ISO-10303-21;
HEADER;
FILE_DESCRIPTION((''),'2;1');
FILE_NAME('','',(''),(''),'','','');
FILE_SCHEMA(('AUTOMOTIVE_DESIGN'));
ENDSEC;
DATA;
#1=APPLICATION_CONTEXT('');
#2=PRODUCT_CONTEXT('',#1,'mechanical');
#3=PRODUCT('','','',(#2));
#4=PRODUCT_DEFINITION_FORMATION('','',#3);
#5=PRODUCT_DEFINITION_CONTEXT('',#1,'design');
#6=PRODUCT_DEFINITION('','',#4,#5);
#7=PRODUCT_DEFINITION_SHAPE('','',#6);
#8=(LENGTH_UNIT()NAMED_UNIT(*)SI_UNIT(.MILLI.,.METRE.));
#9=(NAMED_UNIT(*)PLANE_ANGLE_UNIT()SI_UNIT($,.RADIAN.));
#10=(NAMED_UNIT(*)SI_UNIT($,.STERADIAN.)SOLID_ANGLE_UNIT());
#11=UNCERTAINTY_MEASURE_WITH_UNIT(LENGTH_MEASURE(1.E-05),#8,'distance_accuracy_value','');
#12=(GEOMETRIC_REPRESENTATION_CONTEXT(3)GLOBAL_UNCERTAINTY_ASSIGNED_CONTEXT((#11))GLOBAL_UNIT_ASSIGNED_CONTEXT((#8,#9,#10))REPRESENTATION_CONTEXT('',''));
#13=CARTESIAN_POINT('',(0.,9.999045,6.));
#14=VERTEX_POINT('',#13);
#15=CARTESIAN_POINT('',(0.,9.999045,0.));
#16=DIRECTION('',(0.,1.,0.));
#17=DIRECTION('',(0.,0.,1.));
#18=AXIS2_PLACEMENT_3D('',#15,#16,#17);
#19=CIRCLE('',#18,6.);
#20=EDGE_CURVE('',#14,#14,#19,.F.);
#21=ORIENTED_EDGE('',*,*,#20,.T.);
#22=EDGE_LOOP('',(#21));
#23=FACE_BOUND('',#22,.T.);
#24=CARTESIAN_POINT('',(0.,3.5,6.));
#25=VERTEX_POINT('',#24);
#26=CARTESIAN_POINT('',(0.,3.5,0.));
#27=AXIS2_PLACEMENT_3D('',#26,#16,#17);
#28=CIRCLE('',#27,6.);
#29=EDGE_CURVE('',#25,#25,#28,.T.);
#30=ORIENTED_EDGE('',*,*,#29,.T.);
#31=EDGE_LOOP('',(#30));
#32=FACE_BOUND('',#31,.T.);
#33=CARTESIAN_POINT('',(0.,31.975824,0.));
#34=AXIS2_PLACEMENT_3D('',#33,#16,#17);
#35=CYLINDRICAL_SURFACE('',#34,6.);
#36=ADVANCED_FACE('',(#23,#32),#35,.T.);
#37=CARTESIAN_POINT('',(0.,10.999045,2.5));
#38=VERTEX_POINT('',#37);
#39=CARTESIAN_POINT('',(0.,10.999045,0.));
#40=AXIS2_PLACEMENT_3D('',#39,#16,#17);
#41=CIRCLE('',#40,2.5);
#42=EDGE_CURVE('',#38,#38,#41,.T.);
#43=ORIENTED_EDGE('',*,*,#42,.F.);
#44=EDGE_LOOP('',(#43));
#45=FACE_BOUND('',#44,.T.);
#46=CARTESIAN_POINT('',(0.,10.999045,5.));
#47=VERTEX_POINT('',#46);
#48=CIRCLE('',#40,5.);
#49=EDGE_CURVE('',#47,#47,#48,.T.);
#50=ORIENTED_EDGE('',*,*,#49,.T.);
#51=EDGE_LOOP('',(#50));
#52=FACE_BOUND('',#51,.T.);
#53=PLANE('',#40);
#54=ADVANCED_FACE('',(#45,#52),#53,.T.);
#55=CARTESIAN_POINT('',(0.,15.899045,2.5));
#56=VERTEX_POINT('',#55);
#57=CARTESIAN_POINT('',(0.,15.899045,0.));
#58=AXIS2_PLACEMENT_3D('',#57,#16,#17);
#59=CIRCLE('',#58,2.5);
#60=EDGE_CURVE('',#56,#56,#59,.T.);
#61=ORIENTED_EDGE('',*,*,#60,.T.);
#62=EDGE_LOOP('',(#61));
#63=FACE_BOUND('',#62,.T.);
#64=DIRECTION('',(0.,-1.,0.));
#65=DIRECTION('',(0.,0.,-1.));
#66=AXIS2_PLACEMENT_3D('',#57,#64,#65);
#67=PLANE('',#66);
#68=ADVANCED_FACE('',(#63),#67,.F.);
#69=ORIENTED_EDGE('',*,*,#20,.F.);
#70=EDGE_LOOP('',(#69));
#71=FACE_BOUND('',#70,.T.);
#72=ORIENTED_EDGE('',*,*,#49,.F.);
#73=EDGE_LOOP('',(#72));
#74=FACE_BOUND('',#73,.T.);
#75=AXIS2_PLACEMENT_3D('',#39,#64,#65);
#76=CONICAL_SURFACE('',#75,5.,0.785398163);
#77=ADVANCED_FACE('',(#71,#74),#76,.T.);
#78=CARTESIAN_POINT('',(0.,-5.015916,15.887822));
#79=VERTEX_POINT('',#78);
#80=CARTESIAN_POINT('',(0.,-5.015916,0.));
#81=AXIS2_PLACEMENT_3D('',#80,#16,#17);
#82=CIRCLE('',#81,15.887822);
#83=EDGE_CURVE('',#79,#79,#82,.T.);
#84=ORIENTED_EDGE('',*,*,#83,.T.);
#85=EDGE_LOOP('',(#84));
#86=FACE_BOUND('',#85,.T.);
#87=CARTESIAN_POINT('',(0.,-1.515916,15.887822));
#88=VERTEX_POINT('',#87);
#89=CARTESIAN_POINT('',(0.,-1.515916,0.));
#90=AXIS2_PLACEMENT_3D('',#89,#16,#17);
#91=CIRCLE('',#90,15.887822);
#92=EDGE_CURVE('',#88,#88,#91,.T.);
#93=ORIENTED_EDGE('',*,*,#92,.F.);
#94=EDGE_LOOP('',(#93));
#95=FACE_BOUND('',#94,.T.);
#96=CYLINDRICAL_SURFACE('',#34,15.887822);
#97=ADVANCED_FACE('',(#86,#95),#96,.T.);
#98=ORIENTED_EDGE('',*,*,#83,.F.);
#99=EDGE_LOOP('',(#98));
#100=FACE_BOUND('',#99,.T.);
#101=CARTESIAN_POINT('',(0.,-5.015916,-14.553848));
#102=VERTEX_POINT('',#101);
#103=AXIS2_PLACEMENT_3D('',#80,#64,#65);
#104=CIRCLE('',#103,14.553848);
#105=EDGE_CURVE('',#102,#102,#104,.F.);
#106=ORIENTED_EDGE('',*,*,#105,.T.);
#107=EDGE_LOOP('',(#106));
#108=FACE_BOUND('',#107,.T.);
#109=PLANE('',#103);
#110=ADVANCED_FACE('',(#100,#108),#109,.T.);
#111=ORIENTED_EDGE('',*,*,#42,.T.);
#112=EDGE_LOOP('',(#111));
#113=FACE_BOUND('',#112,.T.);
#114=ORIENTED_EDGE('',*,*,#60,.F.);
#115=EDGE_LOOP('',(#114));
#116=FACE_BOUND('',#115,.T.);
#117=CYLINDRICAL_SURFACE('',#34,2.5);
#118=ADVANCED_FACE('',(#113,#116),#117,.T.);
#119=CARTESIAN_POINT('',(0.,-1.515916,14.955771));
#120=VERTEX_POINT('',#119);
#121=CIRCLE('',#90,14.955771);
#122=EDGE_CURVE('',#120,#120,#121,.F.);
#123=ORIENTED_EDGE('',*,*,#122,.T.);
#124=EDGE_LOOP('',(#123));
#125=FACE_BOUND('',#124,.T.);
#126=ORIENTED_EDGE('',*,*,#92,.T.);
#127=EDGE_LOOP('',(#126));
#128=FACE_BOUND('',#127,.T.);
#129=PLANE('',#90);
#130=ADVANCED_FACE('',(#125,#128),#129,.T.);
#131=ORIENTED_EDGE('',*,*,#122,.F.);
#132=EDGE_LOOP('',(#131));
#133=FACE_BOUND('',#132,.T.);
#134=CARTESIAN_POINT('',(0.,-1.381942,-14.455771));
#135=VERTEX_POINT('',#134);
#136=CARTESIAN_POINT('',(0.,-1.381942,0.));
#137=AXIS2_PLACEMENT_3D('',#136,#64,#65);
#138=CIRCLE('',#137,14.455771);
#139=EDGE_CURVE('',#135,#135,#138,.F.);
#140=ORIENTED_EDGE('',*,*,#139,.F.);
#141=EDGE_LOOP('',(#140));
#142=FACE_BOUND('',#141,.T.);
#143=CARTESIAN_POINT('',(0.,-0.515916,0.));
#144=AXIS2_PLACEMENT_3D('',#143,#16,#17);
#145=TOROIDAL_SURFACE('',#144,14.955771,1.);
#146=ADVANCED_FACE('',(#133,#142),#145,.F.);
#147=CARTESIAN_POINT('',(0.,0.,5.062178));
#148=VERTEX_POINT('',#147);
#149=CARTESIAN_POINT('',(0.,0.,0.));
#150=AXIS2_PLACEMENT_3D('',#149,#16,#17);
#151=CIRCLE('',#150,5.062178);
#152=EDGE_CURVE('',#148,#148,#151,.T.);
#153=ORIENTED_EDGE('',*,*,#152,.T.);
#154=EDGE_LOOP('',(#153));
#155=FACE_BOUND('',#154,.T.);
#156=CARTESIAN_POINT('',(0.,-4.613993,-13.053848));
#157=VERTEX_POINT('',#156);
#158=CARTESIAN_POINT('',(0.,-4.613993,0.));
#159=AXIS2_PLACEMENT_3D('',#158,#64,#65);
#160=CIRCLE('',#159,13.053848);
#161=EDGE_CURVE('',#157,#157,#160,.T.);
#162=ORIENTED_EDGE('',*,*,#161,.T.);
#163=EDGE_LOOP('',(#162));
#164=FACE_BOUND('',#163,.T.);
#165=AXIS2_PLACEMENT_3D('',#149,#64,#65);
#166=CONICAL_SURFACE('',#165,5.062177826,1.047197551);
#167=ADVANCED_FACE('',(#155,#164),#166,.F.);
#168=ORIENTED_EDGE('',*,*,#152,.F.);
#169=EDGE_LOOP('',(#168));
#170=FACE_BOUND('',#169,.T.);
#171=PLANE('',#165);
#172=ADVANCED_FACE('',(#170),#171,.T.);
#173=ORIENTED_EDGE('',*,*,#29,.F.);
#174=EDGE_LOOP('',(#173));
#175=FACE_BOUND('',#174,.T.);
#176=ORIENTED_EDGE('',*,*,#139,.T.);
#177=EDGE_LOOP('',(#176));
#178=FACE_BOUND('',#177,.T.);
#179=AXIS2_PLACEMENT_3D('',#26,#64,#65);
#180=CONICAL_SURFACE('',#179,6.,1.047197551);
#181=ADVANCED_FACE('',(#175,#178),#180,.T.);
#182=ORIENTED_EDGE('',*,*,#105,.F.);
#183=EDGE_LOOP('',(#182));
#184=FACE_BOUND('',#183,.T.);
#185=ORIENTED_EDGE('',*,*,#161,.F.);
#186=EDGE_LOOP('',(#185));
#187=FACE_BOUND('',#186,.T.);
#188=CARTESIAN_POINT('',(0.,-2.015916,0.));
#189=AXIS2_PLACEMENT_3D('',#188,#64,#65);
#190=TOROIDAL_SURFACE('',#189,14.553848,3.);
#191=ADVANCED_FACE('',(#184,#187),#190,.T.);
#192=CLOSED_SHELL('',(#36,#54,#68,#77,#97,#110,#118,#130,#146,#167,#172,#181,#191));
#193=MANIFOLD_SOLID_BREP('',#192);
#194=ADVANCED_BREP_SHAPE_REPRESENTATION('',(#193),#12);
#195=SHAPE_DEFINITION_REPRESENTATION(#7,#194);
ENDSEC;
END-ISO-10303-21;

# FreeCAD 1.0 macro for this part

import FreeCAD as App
import Part
import Sketcher
Q = App.Units.Quantity


def edges_at(feature, points):
    """Names of the edges that pass closest to the given points."""
    edges = feature.Shape.Edges
    near = lambda p: min(range(len(edges)), key=lambda i: edges[i].distToShape(Part.Vertex(*p))[0])
    return sorted({f"Edge{near(p) + 1}" for p in points})


def add_polygon(sketch, points):
    """Adds a closed chain of lines whose ends are joined by coincident constraints."""
    first, n = sketch.GeometryCount, len(points)
    for a, b in zip(points, points[1:] + points[:1]):
        sketch.addGeometry(Part.LineSegment(App.Vector(*a, 0), App.Vector(*b, 0)), False)
    for i in range(n):
        sketch.addConstraint(Sketcher.Constraint("Coincident", first + i, 2, first + (i + 1) % n, 1))

doc = App.newDocument("Part")
body = doc.addObject("PartDesign::Body", "Body")

sketch1 = body.newObject("Sketcher::SketchObject", "Sketch")
sketch1.AttachmentSupport = (doc.getObject("XY_Plane"), [""])
sketch1.MapMode = "FlatFace"
add_polygon(sketch1, [(6, 11), (2.5, 11), (2.5, 15.9), (0, 15.9), (0, 0), (5.1, 0), (13.8, -5), (15.9, -5), (15.9, -1.5), (14.7, -1.5), (6, 3.5)])
sketch1.addConstraint([
    Sketcher.Constraint("Horizontal", 0),
    Sketcher.Constraint("Vertical", 1),
    Sketcher.Constraint("Horizontal", 2),
    Sketcher.Constraint("Vertical", 3),
    Sketcher.Constraint("Horizontal", 4),
    Sketcher.Constraint("Horizontal", 6),
    Sketcher.Constraint("Vertical", 7),
    Sketcher.Constraint("Horizontal", 8),
    Sketcher.Constraint("Vertical", 10),
    Sketcher.Constraint("Coincident", 3, 2, -1, 1),
    Sketcher.Constraint("Parallel", 5, 9),
    Sketcher.Constraint("Equal", 0, 7),
    Sketcher.Constraint("Equal", 5, 9),
    Sketcher.Constraint("Angle", 5, Q("-30 deg")),
    Sketcher.Constraint("DistanceX", 0, 2, 0, 1, Q("3.5 mm")),
    Sketcher.Constraint("DistanceX", 2, 2, 2, 1, Q("2.5 mm")),
    Sketcher.Constraint("DistanceX", 8, 2, 8, 1, Q("1.2 mm")),
    Sketcher.Constraint("DistanceY", 1, 1, 1, 2, Q("4.9 mm")),
    Sketcher.Constraint("DistanceX", -1, 1, 5, 2, Q("13.75 mm")),
    Sketcher.Constraint("DistanceX", 4, 1, 4, 2, Q("5.062178 mm")),
    Sketcher.Constraint("DistanceY", 3, 2, 3, 1, Q("15.899045 mm")),
])
revolution = body.newObject("PartDesign::Revolution", "Revolution")
revolution.Profile = sketch1
revolution.ReferenceAxis = (sketch1, ["V_Axis"])
revolution.Angle = 360
doc.recompute()

fillet = body.newObject("PartDesign::Fillet", "Fillet")
fillet.Base = (revolution, edges_at(revolution, [(0, -5.016, -13.75)]))
fillet.Radius = 3
doc.recompute()

chamfer = body.newObject("PartDesign::Chamfer", "Chamfer")
chamfer.Base = (fillet, edges_at(fillet, [(0, 10.999, -6)]))
chamfer.Size = 1
doc.recompute()

fillet2 = body.newObject("PartDesign::Fillet", "Fillet001")
fillet2.Base = (chamfer, edges_at(chamfer, [(0, -1.516, -14.688)]))
fillet2.Radius = 1

doc.recompute()
